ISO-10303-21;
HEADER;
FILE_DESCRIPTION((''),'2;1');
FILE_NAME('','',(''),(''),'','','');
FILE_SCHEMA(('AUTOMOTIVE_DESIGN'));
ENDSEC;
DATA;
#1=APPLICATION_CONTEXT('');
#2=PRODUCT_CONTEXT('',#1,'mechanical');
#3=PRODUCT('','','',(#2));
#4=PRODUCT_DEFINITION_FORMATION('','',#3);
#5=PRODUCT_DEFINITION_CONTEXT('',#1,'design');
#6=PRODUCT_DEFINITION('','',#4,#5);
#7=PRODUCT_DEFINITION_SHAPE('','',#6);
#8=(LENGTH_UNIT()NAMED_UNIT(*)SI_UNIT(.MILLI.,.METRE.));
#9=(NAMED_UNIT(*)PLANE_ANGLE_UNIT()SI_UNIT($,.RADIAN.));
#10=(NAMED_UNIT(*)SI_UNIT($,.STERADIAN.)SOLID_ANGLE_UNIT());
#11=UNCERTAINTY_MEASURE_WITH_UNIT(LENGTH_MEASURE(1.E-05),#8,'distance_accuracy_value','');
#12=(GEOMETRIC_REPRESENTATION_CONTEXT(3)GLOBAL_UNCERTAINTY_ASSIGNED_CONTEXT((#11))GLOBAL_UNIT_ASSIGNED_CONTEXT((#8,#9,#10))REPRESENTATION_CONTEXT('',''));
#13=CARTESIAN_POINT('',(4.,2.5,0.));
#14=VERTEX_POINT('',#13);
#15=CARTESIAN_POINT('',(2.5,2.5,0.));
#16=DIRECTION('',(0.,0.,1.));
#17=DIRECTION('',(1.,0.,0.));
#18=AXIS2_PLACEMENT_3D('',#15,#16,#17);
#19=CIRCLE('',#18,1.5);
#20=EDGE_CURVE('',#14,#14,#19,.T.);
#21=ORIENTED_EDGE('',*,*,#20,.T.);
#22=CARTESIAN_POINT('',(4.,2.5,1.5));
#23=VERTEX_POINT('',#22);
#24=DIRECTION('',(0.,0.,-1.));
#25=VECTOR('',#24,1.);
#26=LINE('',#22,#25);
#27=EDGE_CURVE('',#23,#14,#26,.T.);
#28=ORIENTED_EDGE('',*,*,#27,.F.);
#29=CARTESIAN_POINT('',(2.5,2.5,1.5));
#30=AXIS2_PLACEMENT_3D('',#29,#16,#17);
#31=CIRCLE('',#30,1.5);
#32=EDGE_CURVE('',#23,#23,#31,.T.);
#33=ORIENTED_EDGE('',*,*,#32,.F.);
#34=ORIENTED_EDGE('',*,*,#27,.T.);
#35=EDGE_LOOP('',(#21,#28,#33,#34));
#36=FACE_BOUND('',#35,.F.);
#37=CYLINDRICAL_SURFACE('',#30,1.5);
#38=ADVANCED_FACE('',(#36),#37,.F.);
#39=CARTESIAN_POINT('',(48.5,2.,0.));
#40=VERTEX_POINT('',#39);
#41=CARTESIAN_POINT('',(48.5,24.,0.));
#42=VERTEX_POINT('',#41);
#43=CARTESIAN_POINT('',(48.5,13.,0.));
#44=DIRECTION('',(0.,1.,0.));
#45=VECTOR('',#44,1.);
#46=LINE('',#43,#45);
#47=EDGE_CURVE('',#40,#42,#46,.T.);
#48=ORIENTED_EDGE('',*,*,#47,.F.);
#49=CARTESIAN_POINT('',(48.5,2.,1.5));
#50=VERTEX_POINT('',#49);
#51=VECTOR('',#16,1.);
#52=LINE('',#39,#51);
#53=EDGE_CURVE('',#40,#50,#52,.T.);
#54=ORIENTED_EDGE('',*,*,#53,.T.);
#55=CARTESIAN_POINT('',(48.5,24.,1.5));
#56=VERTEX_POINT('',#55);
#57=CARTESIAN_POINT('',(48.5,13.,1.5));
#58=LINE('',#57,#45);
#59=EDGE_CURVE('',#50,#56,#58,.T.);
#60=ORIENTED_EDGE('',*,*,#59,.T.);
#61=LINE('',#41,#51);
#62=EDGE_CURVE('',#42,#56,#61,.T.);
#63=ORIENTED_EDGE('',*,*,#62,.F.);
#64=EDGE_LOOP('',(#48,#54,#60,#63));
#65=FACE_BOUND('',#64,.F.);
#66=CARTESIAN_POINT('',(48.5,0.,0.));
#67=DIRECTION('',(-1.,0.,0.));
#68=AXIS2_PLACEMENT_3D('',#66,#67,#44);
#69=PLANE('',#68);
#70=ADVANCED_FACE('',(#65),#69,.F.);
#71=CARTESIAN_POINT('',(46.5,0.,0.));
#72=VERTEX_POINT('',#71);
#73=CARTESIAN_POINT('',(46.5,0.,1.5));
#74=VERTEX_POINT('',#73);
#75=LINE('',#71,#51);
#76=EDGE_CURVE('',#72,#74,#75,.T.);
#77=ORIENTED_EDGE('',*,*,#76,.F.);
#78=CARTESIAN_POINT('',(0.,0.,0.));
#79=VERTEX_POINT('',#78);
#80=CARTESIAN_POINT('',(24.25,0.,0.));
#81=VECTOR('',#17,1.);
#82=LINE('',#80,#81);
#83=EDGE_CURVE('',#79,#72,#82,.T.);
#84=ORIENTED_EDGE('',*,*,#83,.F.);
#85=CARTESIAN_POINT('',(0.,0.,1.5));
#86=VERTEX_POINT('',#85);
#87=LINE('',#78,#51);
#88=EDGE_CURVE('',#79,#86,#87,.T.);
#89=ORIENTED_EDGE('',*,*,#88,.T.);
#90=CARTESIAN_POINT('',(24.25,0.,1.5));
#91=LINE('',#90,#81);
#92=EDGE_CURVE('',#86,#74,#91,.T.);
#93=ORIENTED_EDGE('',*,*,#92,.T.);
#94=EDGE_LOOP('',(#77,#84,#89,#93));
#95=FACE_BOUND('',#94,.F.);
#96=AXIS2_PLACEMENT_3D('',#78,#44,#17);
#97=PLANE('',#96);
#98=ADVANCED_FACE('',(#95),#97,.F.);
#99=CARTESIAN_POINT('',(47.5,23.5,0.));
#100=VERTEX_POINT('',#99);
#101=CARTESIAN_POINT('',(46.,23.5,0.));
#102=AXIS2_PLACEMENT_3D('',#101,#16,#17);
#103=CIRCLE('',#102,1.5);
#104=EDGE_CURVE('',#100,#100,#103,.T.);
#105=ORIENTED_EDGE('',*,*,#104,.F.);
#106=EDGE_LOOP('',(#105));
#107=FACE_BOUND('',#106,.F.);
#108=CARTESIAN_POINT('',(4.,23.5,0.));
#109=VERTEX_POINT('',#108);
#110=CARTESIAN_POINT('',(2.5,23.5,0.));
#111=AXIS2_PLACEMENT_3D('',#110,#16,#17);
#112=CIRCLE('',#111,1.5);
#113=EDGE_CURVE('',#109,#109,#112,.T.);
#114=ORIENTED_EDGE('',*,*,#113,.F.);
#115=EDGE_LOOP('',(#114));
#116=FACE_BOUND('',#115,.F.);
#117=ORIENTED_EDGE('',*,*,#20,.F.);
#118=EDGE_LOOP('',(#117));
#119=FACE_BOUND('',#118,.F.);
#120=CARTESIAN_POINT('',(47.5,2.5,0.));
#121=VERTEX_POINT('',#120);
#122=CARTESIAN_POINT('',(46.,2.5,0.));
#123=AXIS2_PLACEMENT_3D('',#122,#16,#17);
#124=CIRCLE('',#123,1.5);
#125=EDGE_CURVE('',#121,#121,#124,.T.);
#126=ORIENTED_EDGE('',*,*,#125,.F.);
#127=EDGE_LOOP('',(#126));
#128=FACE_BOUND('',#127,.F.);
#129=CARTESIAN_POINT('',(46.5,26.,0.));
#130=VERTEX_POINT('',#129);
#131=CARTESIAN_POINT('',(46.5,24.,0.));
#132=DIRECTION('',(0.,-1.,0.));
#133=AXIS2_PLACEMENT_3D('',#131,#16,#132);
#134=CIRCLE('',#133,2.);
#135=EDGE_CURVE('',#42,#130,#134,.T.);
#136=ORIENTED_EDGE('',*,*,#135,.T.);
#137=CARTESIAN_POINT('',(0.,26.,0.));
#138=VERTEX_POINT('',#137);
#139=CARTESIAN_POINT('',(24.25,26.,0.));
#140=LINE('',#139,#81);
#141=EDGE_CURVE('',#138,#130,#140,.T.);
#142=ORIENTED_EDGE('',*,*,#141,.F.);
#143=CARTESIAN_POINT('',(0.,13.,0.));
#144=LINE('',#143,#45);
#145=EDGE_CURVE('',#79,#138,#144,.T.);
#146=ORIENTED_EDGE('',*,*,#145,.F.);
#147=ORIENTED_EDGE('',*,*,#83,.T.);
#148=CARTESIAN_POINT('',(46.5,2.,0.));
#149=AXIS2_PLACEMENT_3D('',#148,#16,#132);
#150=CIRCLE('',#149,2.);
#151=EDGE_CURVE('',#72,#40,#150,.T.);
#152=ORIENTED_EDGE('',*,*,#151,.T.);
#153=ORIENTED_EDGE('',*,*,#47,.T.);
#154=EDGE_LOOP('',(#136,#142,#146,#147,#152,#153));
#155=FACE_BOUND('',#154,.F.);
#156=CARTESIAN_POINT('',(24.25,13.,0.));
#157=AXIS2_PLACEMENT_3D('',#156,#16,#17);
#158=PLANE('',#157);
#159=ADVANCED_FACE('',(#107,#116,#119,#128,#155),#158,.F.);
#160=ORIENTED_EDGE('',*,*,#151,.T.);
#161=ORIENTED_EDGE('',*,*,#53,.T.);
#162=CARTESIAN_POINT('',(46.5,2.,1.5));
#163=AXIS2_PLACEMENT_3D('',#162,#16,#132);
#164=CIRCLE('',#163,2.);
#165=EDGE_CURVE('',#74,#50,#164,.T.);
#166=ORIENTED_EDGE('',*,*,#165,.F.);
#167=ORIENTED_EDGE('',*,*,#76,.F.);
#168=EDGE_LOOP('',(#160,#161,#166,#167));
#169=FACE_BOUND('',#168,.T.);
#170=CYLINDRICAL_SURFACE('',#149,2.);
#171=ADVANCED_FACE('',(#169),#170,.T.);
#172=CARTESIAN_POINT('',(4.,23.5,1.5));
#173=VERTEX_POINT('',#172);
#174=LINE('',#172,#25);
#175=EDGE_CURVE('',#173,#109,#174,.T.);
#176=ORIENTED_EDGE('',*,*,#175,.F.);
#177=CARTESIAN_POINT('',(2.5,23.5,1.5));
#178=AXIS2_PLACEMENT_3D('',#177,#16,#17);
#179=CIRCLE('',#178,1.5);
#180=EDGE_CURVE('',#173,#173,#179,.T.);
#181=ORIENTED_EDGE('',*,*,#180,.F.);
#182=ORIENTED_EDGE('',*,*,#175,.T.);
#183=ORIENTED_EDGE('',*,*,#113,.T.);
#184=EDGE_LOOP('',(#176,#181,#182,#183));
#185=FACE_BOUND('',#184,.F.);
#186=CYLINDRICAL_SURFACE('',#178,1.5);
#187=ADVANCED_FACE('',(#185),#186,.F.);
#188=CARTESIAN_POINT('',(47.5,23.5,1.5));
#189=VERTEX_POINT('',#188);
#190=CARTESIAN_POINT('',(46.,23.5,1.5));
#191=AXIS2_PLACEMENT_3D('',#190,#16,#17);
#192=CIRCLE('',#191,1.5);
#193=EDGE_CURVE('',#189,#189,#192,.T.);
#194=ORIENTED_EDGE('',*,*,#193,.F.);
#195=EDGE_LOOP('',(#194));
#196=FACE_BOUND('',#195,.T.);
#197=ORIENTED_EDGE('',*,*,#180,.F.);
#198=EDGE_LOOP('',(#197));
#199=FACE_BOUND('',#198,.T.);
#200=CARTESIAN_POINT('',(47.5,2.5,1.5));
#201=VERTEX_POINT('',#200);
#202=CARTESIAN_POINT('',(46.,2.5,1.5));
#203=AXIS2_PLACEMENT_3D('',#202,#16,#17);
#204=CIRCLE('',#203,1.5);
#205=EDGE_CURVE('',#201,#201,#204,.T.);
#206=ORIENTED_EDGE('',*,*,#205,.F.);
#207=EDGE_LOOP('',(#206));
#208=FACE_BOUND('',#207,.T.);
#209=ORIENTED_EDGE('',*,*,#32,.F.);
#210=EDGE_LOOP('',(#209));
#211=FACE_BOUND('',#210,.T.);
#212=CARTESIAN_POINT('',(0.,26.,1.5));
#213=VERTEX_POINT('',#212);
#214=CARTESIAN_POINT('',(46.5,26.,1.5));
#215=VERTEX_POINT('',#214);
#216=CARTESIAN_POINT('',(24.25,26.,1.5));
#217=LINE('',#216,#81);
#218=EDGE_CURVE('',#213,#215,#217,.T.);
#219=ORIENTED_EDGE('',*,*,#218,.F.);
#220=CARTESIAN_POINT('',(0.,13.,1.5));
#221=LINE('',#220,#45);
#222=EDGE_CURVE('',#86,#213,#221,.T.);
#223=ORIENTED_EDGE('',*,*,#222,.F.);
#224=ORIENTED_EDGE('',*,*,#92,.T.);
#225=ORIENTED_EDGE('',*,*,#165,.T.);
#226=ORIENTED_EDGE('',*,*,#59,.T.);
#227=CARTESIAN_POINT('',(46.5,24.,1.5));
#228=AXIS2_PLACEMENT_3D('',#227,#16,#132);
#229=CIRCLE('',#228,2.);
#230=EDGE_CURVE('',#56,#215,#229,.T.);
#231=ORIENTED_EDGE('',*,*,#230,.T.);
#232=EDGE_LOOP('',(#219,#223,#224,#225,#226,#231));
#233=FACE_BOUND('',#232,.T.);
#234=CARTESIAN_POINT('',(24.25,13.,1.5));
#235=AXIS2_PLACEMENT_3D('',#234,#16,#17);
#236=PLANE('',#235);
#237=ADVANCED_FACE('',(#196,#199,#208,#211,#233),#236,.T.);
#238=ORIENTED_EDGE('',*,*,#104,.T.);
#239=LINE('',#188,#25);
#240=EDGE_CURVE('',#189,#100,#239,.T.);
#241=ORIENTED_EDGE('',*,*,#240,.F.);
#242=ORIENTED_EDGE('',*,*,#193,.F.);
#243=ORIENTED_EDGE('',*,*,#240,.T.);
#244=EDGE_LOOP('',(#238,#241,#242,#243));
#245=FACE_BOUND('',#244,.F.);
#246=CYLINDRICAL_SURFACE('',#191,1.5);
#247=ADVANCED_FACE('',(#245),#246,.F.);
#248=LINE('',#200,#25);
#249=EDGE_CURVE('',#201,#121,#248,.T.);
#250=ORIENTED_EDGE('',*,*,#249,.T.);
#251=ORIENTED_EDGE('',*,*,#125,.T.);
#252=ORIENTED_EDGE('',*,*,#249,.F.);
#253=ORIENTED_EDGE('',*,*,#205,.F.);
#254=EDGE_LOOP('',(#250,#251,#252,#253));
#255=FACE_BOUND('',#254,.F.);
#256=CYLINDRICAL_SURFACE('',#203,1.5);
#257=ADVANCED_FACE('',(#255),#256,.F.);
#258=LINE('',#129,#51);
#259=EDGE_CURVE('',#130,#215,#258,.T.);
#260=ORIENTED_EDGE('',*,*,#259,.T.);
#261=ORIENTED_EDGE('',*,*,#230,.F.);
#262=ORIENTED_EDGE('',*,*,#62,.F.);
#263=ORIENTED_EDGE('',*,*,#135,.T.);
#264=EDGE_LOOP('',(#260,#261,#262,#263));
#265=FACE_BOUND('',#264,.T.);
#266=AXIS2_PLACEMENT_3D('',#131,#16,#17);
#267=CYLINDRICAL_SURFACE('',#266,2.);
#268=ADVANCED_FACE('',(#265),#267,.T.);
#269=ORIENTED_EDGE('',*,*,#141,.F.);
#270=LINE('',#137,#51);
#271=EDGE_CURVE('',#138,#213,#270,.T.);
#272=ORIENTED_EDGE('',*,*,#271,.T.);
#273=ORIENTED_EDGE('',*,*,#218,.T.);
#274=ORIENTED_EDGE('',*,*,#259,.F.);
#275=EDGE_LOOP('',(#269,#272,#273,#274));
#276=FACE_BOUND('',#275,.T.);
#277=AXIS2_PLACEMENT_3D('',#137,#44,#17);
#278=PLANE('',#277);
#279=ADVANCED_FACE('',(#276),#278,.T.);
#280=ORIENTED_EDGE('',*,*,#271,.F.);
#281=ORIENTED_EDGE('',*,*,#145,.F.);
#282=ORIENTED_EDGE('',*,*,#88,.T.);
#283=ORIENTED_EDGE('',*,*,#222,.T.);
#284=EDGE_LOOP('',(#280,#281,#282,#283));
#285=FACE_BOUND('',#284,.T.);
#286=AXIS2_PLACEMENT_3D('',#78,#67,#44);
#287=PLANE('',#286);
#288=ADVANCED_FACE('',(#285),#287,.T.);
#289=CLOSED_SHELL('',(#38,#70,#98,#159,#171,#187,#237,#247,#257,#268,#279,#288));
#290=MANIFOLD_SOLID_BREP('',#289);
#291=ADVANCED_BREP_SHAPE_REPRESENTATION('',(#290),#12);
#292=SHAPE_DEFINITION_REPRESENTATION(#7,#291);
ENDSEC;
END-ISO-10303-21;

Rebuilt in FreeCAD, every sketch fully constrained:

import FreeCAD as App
import Part
import Sketcher


def edges_at(feature, points):
    """Names of the edges that pass closest to the given points."""
    edges = feature.Shape.Edges
    near = lambda p: min(range(len(edges)), key=lambda i: edges[i].distToShape(Part.Vertex(*p))[0])
    return sorted({f"Edge{near(p) + 1}" for p in points})


def add_polygon(sketch, points):
    """Adds a closed chain of lines whose ends are joined by coincident constraints."""
    first, n = sketch.GeometryCount, len(points)
    for a, b in zip(points, points[1:] + points[:1]):
        sketch.addGeometry(Part.LineSegment(App.Vector(*a, 0), App.Vector(*b, 0)), False)
    for i in range(n):
        sketch.addConstraint(Sketcher.Constraint("Coincident", first + i, 2, first + (i + 1) % n, 1))

doc = App.newDocument("Part")
body = doc.addObject("PartDesign::Body", "Body")

sketch1 = body.newObject("Sketcher::SketchObject", "Sketch")
sketch1.AttachmentSupport = (doc.getObject("XY_Plane"), [""])
sketch1.MapMode = "FlatFace"
add_polygon(sketch1, [(0, 26), (0, 0), (48, 0), (48, 26)])
sketch1.addConstraint(Sketcher.Constraint("Vertical", 0))
sketch1.addConstraint(Sketcher.Constraint("Horizontal", 1))
sketch1.addConstraint(Sketcher.Constraint("Vertical", 2))
sketch1.addConstraint(Sketcher.Constraint("Horizontal", 3))
sketch1.addConstraint(Sketcher.Constraint("Coincident", 0, 2, -1, 1))
sketch1.addConstraint(Sketcher.Constraint("DistanceY", 0, 2, 0, 1, 26.0))
sketch1.addConstraint(Sketcher.Constraint("DistanceX", 1, 1, 1, 2, 48.5))
pad1 = body.newObject("PartDesign::Pad", "Pad")
pad1.Profile = sketch1
pad1.Length = 1.5
doc.recompute()

fillet = body.newObject("PartDesign::Fillet", "Fillet")
fillet.Base = (pad1, edges_at(pad1, [(48.5, 0, 0.75), (48.5, 26, 0.75)]))
fillet.Radius = 2

sketch2 = body.newObject("Sketcher::SketchObject", "Sketch001")
sketch2.AttachmentSupport = (doc.getObject("XY_Plane"), [""])
sketch2.MapMode = "FlatFace"
sketch2.AttachmentOffset = App.Placement(App.Vector(0, 0, 1.5), App.Rotation())
sketch2.addGeometry(Part.Circle(App.Vector(2.5, 23.5, 0), App.Vector(0, 0, 1), 1.5), False)
sketch2.addGeometry(Part.Circle(App.Vector(46, 23.5, 0), App.Vector(0, 0, 1), 1.5), False)
sketch2.addGeometry(Part.Circle(App.Vector(46, 2.5, 0), App.Vector(0, 0, 1), 1.5), False)
sketch2.addGeometry(Part.Circle(App.Vector(2.5, 2.5, 0), App.Vector(0, 0, 1), 1.5), False)
sketch2.addConstraint(Sketcher.Constraint("Equal", 0, 1))
sketch2.addConstraint(Sketcher.Constraint("Equal", 1, 2))
sketch2.addConstraint(Sketcher.Constraint("Equal", 2, 3))
sketch2.addConstraint(Sketcher.Constraint("Horizontal", 0, 3, 1, 3))
sketch2.addConstraint(Sketcher.Constraint("Horizontal", 2, 3, 3, 3))
sketch2.addConstraint(Sketcher.Constraint("Vertical", 1, 3, 2, 3))
sketch2.addConstraint(Sketcher.Constraint("Vertical", 0, 3, 3, 3))
sketch2.addConstraint(Sketcher.Constraint("Diameter", 0, 3.0))
sketch2.addConstraint(Sketcher.Constraint("DistanceX", -1, 1, 1, 3, 46.0))
sketch2.addConstraint(Sketcher.Constraint("DistanceY", 2, 3, 1, 3, 21.0))
sketch2.addConstraint(Sketcher.Constraint("DistanceX", -1, 1, 0, 3, 2.5))
sketch2.addConstraint(Sketcher.Constraint("DistanceY", -1, 1, 0, 3, 23.5))
pocket1 = body.newObject("PartDesign::Pocket", "Pocket")
pocket1.Profile = sketch2
pocket1.Length = 5

doc.recompute()
